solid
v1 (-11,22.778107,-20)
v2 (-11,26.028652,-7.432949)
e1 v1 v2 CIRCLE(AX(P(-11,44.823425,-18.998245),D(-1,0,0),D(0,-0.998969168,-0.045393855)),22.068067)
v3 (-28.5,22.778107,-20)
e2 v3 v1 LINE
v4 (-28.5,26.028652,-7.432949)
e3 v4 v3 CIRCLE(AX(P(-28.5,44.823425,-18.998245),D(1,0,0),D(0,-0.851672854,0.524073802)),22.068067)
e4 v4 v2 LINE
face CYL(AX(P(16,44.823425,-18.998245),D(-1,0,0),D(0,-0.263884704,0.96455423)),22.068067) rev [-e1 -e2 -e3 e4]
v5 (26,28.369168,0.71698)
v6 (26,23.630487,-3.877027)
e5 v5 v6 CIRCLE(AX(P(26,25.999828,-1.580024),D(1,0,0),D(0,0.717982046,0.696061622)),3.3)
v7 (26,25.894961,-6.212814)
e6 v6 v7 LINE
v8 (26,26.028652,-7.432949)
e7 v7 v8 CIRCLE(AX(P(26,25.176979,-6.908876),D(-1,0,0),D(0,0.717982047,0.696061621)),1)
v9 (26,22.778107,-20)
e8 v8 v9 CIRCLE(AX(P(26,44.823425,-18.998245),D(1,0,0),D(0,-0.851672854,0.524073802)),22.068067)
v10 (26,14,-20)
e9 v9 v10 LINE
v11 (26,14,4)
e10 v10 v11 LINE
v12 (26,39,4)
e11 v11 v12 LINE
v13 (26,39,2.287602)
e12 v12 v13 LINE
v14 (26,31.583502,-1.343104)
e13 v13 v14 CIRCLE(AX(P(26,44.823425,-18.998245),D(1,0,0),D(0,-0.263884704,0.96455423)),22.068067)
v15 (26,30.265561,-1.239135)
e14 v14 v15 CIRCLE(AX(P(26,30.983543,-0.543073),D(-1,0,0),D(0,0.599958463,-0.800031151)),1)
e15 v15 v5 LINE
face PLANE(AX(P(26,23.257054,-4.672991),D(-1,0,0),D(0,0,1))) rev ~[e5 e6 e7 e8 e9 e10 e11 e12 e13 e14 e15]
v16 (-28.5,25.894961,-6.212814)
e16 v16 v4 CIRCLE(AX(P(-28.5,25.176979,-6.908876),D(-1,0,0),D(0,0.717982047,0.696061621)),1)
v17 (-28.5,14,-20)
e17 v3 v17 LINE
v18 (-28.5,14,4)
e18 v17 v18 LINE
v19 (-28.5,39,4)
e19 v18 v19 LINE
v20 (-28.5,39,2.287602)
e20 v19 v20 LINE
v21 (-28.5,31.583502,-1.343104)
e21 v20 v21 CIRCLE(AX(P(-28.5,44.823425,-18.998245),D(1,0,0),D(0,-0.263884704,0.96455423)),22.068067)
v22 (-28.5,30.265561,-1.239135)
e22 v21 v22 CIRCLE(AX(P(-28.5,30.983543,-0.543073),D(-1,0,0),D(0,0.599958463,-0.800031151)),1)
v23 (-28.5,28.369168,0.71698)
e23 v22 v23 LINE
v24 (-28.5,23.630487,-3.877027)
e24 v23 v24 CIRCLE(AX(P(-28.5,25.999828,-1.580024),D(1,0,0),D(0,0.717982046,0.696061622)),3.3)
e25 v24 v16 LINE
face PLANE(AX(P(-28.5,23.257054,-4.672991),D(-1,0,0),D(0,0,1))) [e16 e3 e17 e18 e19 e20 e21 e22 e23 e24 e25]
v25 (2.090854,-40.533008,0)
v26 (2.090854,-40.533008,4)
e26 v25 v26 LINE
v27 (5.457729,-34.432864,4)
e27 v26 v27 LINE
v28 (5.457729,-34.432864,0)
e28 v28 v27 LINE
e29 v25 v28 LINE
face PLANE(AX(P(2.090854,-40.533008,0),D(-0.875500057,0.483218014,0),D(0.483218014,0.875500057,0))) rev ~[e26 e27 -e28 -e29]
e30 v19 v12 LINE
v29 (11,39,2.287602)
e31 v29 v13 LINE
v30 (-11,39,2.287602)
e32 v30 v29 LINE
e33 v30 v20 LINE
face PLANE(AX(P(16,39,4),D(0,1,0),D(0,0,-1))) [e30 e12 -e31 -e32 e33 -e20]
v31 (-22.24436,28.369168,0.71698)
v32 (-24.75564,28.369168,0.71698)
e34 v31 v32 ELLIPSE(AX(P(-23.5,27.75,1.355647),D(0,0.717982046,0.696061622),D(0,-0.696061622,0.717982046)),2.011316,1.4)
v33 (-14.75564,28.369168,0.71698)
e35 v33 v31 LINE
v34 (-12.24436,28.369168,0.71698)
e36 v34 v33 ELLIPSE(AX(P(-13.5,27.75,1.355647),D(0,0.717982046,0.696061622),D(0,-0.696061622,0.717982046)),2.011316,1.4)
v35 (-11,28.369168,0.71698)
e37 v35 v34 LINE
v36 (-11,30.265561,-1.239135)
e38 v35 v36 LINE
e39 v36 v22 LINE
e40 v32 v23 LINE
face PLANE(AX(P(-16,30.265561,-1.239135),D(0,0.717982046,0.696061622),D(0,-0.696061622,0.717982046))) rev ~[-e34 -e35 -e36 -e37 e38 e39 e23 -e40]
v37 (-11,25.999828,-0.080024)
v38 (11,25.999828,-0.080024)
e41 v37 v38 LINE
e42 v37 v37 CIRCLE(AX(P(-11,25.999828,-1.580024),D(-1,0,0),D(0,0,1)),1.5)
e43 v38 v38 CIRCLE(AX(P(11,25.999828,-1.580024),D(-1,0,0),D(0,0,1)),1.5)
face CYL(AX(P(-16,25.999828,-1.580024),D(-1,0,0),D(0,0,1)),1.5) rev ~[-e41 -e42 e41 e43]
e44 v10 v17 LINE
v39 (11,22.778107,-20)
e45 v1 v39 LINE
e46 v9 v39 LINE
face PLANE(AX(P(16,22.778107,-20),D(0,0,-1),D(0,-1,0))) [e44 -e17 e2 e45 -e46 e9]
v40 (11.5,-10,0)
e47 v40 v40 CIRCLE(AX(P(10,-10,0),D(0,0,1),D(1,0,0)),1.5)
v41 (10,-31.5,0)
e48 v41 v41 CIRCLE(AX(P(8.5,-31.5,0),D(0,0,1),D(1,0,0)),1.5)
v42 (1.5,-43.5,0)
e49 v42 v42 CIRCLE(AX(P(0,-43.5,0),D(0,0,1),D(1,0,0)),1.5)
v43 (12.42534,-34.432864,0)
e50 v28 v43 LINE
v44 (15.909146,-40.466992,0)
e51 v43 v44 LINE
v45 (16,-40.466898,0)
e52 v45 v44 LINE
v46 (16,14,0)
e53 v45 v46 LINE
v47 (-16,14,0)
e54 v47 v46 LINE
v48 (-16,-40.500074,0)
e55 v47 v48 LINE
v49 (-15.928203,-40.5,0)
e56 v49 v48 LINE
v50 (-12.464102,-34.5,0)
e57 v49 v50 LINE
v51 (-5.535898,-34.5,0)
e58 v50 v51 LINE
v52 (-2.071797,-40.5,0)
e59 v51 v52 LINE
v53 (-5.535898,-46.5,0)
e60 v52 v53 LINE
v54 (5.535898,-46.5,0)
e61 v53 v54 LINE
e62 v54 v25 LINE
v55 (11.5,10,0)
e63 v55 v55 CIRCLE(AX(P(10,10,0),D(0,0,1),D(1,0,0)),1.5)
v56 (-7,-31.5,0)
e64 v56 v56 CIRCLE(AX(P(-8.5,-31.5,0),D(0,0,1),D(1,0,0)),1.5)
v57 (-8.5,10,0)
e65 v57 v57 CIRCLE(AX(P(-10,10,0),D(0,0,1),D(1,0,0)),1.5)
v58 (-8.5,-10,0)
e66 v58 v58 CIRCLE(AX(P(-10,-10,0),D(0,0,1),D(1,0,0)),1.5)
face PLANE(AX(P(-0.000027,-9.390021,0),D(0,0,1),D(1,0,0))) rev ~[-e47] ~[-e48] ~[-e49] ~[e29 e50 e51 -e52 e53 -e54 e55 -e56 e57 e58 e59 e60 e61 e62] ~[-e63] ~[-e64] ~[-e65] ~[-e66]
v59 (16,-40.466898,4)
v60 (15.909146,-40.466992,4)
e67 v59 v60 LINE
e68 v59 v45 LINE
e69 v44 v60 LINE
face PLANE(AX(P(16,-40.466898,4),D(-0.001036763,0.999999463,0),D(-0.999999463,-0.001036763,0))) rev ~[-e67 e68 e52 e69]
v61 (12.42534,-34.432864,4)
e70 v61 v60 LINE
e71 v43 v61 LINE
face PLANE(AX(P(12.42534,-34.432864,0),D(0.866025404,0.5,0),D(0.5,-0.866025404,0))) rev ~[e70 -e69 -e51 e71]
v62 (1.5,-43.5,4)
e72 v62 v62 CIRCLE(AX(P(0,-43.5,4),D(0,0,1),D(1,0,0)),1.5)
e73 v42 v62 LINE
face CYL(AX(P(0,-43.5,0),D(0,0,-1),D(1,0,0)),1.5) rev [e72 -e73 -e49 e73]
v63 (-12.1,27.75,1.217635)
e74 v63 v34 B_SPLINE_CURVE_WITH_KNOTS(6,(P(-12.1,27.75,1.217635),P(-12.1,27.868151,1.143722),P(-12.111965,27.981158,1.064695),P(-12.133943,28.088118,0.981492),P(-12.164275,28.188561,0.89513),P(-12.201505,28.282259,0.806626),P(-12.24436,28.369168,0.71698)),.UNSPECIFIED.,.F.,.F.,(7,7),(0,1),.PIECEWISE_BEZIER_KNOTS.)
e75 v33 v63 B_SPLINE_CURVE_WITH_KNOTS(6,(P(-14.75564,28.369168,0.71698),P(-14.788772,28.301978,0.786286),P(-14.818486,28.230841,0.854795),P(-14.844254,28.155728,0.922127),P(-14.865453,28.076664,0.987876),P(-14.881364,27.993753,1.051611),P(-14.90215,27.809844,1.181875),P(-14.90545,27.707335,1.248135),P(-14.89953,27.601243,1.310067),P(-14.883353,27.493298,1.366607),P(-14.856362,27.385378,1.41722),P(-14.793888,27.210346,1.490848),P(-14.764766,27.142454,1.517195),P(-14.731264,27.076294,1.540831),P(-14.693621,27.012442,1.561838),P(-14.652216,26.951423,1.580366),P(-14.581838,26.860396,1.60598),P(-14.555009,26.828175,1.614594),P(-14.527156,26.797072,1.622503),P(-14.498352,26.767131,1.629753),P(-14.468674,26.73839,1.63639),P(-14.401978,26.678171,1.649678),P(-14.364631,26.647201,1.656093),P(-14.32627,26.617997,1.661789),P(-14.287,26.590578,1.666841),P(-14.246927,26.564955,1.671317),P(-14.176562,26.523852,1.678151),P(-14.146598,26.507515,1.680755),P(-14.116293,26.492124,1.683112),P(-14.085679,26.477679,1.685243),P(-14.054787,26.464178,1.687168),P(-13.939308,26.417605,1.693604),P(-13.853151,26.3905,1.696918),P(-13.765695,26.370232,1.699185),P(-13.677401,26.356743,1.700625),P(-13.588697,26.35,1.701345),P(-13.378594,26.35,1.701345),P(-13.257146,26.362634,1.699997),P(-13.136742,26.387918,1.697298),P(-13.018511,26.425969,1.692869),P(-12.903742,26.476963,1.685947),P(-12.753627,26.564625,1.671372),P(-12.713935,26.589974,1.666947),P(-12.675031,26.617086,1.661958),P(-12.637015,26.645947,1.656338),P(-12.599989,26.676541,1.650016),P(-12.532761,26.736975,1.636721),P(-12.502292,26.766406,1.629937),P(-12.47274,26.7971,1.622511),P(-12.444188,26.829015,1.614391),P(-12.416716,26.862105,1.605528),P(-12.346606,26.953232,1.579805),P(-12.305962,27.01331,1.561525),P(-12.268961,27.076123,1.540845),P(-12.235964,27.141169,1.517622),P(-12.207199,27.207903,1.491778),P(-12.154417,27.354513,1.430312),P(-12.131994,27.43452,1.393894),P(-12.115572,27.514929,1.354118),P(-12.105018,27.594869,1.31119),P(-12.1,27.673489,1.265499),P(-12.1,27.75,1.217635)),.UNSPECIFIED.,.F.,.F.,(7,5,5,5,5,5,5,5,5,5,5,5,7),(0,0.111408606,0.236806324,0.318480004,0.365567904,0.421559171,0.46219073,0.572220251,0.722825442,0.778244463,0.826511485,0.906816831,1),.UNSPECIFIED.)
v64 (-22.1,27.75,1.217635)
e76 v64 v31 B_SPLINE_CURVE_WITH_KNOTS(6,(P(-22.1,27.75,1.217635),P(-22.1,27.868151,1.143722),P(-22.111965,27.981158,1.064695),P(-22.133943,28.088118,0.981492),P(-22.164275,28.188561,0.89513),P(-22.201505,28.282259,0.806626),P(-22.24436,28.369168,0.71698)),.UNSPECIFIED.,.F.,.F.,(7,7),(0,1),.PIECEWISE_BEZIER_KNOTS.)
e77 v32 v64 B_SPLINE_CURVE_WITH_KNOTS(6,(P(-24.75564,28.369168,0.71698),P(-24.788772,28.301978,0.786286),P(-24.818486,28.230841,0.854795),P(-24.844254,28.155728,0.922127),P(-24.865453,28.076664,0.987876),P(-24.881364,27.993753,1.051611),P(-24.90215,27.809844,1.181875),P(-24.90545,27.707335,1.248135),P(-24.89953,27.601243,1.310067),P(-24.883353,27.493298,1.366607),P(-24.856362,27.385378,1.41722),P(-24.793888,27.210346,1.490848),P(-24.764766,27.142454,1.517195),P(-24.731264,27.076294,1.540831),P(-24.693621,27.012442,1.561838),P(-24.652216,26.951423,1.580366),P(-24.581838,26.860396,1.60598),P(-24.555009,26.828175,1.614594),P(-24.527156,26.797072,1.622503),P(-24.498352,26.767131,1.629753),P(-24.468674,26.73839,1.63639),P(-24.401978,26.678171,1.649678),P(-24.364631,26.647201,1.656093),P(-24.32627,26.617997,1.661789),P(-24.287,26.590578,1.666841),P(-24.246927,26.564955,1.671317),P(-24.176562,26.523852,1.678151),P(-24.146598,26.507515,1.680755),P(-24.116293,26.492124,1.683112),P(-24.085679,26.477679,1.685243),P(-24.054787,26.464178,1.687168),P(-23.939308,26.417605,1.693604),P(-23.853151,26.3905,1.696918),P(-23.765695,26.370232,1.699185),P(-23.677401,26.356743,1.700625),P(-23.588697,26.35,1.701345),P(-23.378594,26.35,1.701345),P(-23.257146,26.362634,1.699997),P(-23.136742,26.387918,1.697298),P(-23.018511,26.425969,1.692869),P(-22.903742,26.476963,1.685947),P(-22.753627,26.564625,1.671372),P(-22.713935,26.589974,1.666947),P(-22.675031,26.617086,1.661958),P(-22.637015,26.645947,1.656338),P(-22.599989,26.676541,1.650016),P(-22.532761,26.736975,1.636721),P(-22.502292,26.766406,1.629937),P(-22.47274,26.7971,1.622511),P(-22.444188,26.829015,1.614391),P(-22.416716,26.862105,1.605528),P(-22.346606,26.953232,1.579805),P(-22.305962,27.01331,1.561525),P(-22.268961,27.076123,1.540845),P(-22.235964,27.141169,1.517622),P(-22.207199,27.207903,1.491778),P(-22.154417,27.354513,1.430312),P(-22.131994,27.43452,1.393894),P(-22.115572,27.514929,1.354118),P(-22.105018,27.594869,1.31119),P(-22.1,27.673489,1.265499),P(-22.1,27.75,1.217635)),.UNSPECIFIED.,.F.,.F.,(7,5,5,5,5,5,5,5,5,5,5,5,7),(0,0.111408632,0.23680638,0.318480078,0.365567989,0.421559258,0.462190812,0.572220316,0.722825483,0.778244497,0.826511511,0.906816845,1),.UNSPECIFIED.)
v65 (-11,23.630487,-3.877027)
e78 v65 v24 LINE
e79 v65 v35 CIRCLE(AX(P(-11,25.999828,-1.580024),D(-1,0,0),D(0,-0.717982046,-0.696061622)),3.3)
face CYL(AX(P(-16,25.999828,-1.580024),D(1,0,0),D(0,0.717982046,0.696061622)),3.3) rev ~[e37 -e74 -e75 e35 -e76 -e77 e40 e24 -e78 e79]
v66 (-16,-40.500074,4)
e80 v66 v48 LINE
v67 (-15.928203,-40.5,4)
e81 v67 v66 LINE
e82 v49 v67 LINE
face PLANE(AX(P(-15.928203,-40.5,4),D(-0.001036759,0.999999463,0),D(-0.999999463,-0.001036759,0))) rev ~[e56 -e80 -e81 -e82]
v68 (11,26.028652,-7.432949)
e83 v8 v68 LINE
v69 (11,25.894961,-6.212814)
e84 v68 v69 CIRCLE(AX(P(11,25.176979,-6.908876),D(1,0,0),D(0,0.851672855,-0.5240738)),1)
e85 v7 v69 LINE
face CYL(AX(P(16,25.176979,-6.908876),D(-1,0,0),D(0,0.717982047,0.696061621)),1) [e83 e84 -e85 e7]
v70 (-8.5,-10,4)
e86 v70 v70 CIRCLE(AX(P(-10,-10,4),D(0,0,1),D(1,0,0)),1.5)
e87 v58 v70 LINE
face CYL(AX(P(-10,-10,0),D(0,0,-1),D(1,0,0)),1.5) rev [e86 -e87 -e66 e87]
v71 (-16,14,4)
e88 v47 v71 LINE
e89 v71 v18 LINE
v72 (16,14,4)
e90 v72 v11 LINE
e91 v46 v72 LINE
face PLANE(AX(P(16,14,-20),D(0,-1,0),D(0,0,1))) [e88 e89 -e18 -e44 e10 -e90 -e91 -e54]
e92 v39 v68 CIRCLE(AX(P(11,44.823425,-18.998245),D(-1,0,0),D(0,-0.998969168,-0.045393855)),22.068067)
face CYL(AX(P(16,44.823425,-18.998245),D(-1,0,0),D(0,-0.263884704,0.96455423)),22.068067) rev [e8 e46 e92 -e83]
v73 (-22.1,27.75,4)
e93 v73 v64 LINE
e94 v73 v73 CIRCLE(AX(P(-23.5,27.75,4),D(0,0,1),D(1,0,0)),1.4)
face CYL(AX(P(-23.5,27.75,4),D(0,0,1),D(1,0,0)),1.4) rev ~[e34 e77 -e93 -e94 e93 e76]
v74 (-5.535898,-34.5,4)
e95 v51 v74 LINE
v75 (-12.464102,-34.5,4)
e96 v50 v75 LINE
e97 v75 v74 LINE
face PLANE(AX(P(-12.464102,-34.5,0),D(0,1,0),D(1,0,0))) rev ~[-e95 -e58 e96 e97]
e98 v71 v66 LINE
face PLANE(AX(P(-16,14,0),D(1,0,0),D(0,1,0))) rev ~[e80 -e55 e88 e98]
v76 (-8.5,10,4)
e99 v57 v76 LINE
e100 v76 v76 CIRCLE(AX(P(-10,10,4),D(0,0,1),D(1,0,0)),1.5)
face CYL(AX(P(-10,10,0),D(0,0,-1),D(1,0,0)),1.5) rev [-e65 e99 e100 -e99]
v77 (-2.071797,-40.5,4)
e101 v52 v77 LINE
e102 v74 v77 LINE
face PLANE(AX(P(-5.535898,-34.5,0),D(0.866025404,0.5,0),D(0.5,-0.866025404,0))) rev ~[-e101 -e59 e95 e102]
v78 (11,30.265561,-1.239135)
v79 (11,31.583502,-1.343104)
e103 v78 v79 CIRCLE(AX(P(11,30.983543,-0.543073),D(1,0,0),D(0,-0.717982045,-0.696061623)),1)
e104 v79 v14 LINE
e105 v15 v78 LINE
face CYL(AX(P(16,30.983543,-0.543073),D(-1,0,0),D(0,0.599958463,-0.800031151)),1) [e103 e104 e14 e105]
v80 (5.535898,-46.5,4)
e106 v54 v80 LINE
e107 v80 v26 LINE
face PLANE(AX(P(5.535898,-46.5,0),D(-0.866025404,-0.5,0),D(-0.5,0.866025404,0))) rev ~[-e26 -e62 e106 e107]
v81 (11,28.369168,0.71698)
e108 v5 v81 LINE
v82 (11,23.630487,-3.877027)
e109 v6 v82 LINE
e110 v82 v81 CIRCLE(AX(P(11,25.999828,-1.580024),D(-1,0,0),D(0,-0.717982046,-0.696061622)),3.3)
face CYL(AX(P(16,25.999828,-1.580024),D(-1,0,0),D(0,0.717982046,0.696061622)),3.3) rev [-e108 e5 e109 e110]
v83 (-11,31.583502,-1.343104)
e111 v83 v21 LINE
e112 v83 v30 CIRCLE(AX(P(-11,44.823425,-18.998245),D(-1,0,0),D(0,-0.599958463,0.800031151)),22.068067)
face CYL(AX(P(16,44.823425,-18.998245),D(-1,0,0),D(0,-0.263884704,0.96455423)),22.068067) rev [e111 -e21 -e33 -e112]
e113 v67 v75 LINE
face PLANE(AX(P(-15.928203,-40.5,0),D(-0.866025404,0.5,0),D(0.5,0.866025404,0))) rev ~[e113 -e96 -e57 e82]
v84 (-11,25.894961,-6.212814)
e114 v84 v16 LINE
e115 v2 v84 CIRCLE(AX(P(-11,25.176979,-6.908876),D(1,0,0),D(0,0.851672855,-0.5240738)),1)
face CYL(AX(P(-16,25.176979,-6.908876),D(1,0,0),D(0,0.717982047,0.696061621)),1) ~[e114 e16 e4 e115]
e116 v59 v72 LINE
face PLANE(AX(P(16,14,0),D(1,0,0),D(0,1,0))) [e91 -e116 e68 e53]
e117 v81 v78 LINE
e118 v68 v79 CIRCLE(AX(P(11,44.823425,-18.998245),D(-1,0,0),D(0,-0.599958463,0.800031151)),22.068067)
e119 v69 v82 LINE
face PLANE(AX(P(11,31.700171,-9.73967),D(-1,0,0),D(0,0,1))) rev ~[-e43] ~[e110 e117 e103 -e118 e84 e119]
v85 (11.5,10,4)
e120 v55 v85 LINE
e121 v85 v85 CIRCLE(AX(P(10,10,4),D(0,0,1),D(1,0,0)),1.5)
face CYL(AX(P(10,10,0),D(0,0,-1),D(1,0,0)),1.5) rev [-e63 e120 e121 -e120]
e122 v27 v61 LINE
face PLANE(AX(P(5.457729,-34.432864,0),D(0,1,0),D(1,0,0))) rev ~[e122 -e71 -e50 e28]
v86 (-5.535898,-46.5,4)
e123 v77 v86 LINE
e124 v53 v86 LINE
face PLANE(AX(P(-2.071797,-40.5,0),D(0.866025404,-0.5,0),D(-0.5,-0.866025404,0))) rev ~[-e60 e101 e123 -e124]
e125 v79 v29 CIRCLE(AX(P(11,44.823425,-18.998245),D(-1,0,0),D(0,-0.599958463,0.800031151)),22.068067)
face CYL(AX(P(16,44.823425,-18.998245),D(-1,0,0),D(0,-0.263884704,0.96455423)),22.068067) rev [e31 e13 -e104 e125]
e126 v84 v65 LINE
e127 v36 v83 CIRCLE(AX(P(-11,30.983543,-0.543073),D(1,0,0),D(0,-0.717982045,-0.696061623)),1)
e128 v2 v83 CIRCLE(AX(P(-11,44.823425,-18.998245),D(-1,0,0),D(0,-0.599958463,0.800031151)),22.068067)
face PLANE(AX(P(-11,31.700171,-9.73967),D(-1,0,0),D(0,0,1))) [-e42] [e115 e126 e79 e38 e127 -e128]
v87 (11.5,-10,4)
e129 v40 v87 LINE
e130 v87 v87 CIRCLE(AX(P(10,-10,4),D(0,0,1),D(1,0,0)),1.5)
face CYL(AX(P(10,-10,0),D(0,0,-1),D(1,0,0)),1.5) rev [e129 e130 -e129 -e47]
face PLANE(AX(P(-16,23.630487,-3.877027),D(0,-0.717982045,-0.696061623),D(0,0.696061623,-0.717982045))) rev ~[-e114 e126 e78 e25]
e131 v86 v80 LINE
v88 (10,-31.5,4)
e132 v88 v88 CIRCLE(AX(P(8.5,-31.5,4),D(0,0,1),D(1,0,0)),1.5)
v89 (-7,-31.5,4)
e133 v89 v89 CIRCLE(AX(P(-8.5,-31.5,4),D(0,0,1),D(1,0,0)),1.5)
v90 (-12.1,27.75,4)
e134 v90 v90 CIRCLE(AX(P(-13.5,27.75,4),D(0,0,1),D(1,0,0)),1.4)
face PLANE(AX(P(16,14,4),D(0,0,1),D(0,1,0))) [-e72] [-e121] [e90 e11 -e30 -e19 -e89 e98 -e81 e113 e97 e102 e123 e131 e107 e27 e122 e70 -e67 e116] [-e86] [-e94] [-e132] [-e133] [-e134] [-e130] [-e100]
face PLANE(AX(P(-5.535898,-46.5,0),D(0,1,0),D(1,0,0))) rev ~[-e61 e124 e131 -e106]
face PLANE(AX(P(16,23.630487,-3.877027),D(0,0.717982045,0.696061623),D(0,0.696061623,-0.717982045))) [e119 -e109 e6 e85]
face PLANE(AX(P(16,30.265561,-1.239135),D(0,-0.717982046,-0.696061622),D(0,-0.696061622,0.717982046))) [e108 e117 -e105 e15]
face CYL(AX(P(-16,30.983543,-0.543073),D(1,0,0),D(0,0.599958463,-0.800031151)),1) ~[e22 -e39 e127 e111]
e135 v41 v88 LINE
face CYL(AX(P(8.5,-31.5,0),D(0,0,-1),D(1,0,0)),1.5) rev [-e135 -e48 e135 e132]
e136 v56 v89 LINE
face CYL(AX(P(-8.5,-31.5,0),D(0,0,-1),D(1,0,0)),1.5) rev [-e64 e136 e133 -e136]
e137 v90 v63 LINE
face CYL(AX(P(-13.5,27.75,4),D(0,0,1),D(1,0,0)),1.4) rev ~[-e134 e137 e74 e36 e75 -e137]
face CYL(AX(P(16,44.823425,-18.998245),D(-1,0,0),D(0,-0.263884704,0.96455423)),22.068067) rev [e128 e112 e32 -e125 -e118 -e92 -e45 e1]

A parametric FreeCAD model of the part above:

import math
import FreeCAD as App
import Part
import Sketcher

V = App.Vector
Q = App.Units.Quantity

doc = App.newDocument("Part")
body = doc.addObject("PartDesign::Body", "Body")

# Sketch on XY plane
sketch1 = body.newObject("Sketcher::SketchObject", "Sketch")
sketch1.AttachmentSupport = (doc.getObject("XY_Plane"), [""])
sketch1.MapMode = "FlatFace"
sketch1.addGeometry([
    Part.LineSegment(V(-16, 39, 0), V(-16, -46.5, 0)),  # 0
    Part.LineSegment(V(-16, -46.5, 0), V(-15, -46.5, 0)),  # 1
    Part.LineSegment(V(-15, -46.5, 0), V(-15, -42.2, 0)),  # 2
    Part.LineSegment(V(-15, -42.2, 0), V(-15.9, -40.5, 0)),  # 3
    Part.LineSegment(V(-15.9, -40.5, 0), V(-12.5, -34.5, 0)),  # 4
    Part.LineSegment(V(-12.5, -34.5, 0), V(-5.5, -34.5, 0)),  # 5
    Part.LineSegment(V(-5.5, -34.5, 0), V(-2.1, -40.5, 0)),  # 6
    Part.LineSegment(V(-2.1, -40.5, 0), V(-5.5, -46.5, 0)),  # 7
    Part.LineSegment(V(-5.5, -46.5, 0), V(5.5, -46.5, 0)),  # 8
    Part.LineSegment(V(5.5, -46.5, 0), V(2.1, -40.5, 0)),  # 9
    Part.LineSegment(V(2.1, -40.5, 0), V(5.5, -34.4, 0)),  # 10
    Part.LineSegment(V(5.5, -34.4, 0), V(12.4, -34.4, 0)),  # 11
    Part.LineSegment(V(12.4, -34.4, 0), V(15.9, -40.5, 0)),  # 12
    Part.LineSegment(V(15.9, -40.5, 0), V(15, -42.1, 0)),  # 13
    Part.LineSegment(V(15, -42.1, 0), V(15, -46.5, 0)),  # 14
    Part.LineSegment(V(15, -46.5, 0), V(16, -46.5, 0)),  # 15
    Part.LineSegment(V(16, -46.5, 0), V(16, 39, 0)),  # 16
    Part.LineSegment(V(16, 39, 0), V(-16, 39, 0)),  # 17
    Part.Circle(V(-8.5, -31.5, 0), V(0, 0, 1), 1.5),  # 18
    Part.Circle(V(0, -43.5, 0), V(0, 0, 1), 1.5),  # 19
    Part.Circle(V(8.5, -31.5, 0), V(0, 0, 1), 1.5),  # 20
    Part.Circle(V(-10, -10, 0), V(0, 0, 1), 1.5),  # 21
    Part.Circle(V(-10, 10, 0), V(0, 0, 1), 1.5),  # 22
    Part.Circle(V(10, -10, 0), V(0, 0, 1), 1.5),  # 23
    Part.Circle(V(10, 10, 0), V(0, 0, 1), 1.5),  # 24
], False)
sketch1.addConstraint([
    Sketcher.Constraint("Coincident", 0, 2, 1, 1),
    Sketcher.Constraint("Coincident", 1, 2, 2, 1),
    Sketcher.Constraint("Coincident", 2, 2, 3, 1),
    Sketcher.Constraint("Coincident", 3, 2, 4, 1),
    Sketcher.Constraint("Coincident", 4, 2, 5, 1),
    Sketcher.Constraint("Coincident", 5, 2, 6, 1),
    Sketcher.Constraint("Coincident", 6, 2, 7, 1),
    Sketcher.Constraint("Coincident", 7, 2, 8, 1),
    Sketcher.Constraint("Coincident", 8, 2, 9, 1),
    Sketcher.Constraint("Coincident", 9, 2, 10, 1),
    Sketcher.Constraint("Coincident", 10, 2, 11, 1),
    Sketcher.Constraint("Coincident", 11, 2, 12, 1),
    Sketcher.Constraint("Coincident", 12, 2, 13, 1),
    Sketcher.Constraint("Coincident", 13, 2, 14, 1),
    Sketcher.Constraint("Coincident", 14, 2, 15, 1),
    Sketcher.Constraint("Coincident", 15, 2, 16, 1),
    Sketcher.Constraint("Coincident", 16, 2, 17, 1),
    Sketcher.Constraint("Coincident", 17, 2, 0, 1),
    Sketcher.Constraint("Vertical", 0),
    Sketcher.Constraint("Horizontal", 1),
    Sketcher.Constraint("Vertical", 2),
    Sketcher.Constraint("Horizontal", 5),
    Sketcher.Constraint("Horizontal", 8),
    Sketcher.Constraint("Horizontal", 11),
    Sketcher.Constraint("Vertical", 14),
    Sketcher.Constraint("Horizontal", 15),
    Sketcher.Constraint("Vertical", 16),
    Sketcher.Constraint("Horizontal", 17),
    Sketcher.Constraint("Equal", 18, 19),
    Sketcher.Constraint("Equal", 19, 20),
    Sketcher.Constraint("Equal", 20, 21),
    Sketcher.Constraint("Equal", 21, 22),
    Sketcher.Constraint("Equal", 22, 23),
    Sketcher.Constraint("Equal", 23, 24),
    Sketcher.Constraint("Symmetric", 22, 3, 23, 3, -1, 1),
    Sketcher.Constraint("Symmetric", 21, 3, 24, 3, -1, 1),
    Sketcher.Constraint("Symmetric", 18, 3, 20, 3, -2),
    Sketcher.Constraint("Symmetric", 21, 3, 23, 3, -2),
    Sketcher.Constraint("Symmetric", 0, 2, 15, 2, -2),
    Sketcher.Constraint("PointOnObject", 19, 3, -2),
    Sketcher.Constraint("Parallel", 3, 6),
    Sketcher.Constraint("Parallel", 4, 7),
    Sketcher.Constraint("Parallel", 6, 9),
    Sketcher.Constraint("Parallel", 9, 12),
    Sketcher.Constraint("Parallel", 10, 13),
    Sketcher.Constraint("Horizontal", 3, 2, 6, 2),
    Sketcher.Constraint("Horizontal", 1, 2, 7, 2),
    Sketcher.Constraint("Vertical", 5, 2, 7, 2),
    Sketcher.Constraint("Equal", 4, 6),
    Sketcher.Constraint("Equal", 10, 12),
    Sketcher.Constraint("Diameter", 18, Q("3 mm")),
    Sketcher.Constraint("DistanceX", 15, 1, 15, 2, Q("1 mm")),
    Sketcher.Constraint("DistanceX", 17, 2, 17, 1, Q("32 mm")),
    Sketcher.Constraint("Angle", 3, Q("120 deg")),
    Sketcher.Constraint("DistanceY", 0, 2, 0, 1, Q("85.5 mm")),
    Sketcher.Constraint("DistanceX", 21, 3, -1, 1, Q("10 mm")),
    Sketcher.Constraint("DistanceY", 21, 3, -1, 1, Q("10 mm")),
    Sketcher.Constraint("DistanceY", -1, 1, 16, 2, Q("39 mm")),
    Sketcher.Constraint("DistanceY", 19, 3, 18, 3, Q("12 mm")),
    Sketcher.Constraint("DistanceX", 18, 3, 20, 3, Q("17 mm")),
    Sketcher.Constraint("DistanceY", 0, 2, 19, 3, Q("3 mm")),
    Sketcher.Constraint("DistanceY", 0, 2, 3, 2, Q("6 mm")),
    Sketcher.Constraint("DistanceX", 11, 1, 11, 2, Q("6.967611 mm")),
    Sketcher.Constraint("DistanceY", 2, 1, 2, 2, Q("4.33912 mm")),
    Sketcher.Constraint("DistanceX", 4, 2, -1, 1, Q("12.464102 mm")),
    Sketcher.Constraint("DistanceX", 5, 2, -1, 1, Q("5.535898 mm")),
    Sketcher.Constraint("DistanceX", -1, 1, 8, 2, Q("5.535898 mm")),
    Sketcher.Constraint("DistanceY", 13, 2, 12, 2, Q("1.647202 mm")),
    Sketcher.Constraint("Distance", 9, Q("6.890089 mm")),
    Sketcher.Constraint("Distance", 10, Q("6.967611 mm")),
])
pad1 = body.newObject("PartDesign::Pad", "Pad")
pad1.Profile = sketch1
pad1.Length = 4

# Sketch on XY plane
sketch2 = body.newObject("Sketcher::SketchObject", "Sketch001")
sketch2.AttachmentSupport = (doc.getObject("XY_Plane"), [""])
sketch2.MapMode = "FlatFace"
sketch2.addGeometry([
    Part.LineSegment(V(-16, 39, 0), V(-16, 14, 0)),
    Part.LineSegment(V(-16, 14, 0), V(16, 14, 0)),
    Part.LineSegment(V(16, 14, 0), V(16, 39, 0)),
    Part.LineSegment(V(16, 39, 0), V(-16, 39, 0)),
], False)
sketch2.addConstraint([
    Sketcher.Constraint("Coincident", 0, 2, 1, 1),
    Sketcher.Constraint("Coincident", 1, 2, 2, 1),
    Sketcher.Constraint("Coincident", 2, 2, 3, 1),
    Sketcher.Constraint("Coincident", 3, 2, 0, 1),
    Sketcher.Constraint("Vertical", 0),
    Sketcher.Constraint("Horizontal", 1),
    Sketcher.Constraint("Vertical", 2),
    Sketcher.Constraint("Horizontal", 3),
    Sketcher.Constraint("DistanceX", 1, 1, 1, 2, Q("32 mm")),
    Sketcher.Constraint("DistanceY", 0, 2, 0, 1, Q("25 mm")),
    Sketcher.Constraint("DistanceX", 0, 2, -1, 1, Q("16 mm")),
    Sketcher.Constraint("DistanceY", -1, 1, 0, 2, Q("14 mm")),
])
pad2 = body.newObject("PartDesign::Pad", "Pad001")
pad2.Profile = sketch2
pad2.Length = 20
pad2.Reversed = True

# Sketch on YZ plane
sketch3 = body.newObject("Sketcher::SketchObject", "Sketch002")
sketch3.AttachmentSupport = (doc.getObject("YZ_Plane"), [""])
sketch3.MapMode = "FlatFace"
sketch3.AttachmentOffset = App.Placement(V(0, 0, -16), App.Rotation())
sketch3.addGeometry(Part.Circle(V(26, -1.6, 0), V(0, 0, 1), 1.5), False)
sketch3.addConstraint([
    Sketcher.Constraint("Diameter", 0, Q("3 mm")),
    Sketcher.Constraint("DistanceX", -1, 1, 0, 3, Q("25.999828 mm")),
    Sketcher.Constraint("DistanceY", 0, 3, -1, 1, Q("1.580024 mm")),
])
pocket1 = body.newObject("PartDesign::Pocket", "Pocket")
pocket1.Profile = sketch3
pocket1.Type = "ThroughAll"
pocket1.Midplane = True

# Sketch on YZ plane
sketch4 = body.newObject("Sketcher::SketchObject", "Sketch003")
sketch4.AttachmentSupport = (doc.getObject("YZ_Plane"), [""])
sketch4.MapMode = "FlatFace"
sketch4.AttachmentOffset = App.Placement(V(0, 0, -16), App.Rotation())
sketch4.addGeometry([
    Part.LineSegment(V(28.4, 0.7, 0), V(30.3, -1.2, 0)),  # 0
    Part.ArcOfCircle(Part.Circle(V(31, -0.5, 0), V(0, 0, 1), 1), math.radians(-136), math.radians(-53)),  # 1
    Part.ArcOfCircle(Part.Circle(V(44.8, -19, 0), V(0, 0, 1), 22.1), math.radians(105), math.radians(127)),  # 2
    Part.LineSegment(V(39, 2.3, 0), V(39, -20, 0)),  # 3
    Part.LineSegment(V(39, -20, 0), V(22.8, -20, 0)),  # 4
    Part.ArcOfCircle(Part.Circle(V(44.8, -19, 0), V(0, 0, 1), 22.1), math.radians(148), math.radians(183)),  # 5
    Part.ArcOfCircle(Part.Circle(V(25.2, -6.9, 0), V(0, 0, 1), 1), math.radians(-32), math.radians(44)),  # 6
    Part.LineSegment(V(25.9, -6.2, 0), V(23.6, -3.9, 0)),  # 7
    Part.ArcOfCircle(Part.Circle(V(26, -1.6, 0), V(0, 0, 1), 3.3), math.radians(44), math.radians(224)),  # 8
], False)
sketch4.addConstraint([
    Sketcher.Constraint("Tangent", 0, 2, 1, 1),
    Sketcher.Constraint("Tangent", 1, 2, 2, 2),
    Sketcher.Constraint("Coincident", 2, 1, 3, 1),
    Sketcher.Constraint("Coincident", 3, 2, 4, 1),
    Sketcher.Constraint("Coincident", 4, 2, 5, 2),
    Sketcher.Constraint("Tangent", 5, 1, 6, 1),
    Sketcher.Constraint("Tangent", 6, 2, 7, 1),
    Sketcher.Constraint("Tangent", 7, 2, 8, 2),
    Sketcher.Constraint("Tangent", 8, 1, 0, 1),
    Sketcher.Constraint("Vertical", 3),
    Sketcher.Constraint("Horizontal", 4),
    Sketcher.Constraint("Coincident", 5, 3, 2, 3),
    Sketcher.Constraint("Equal", 2, 5),
    Sketcher.Constraint("Equal", 1, 6),
    Sketcher.Constraint("Parallel", 0, 7),
    Sketcher.Constraint("Radius", 1, Q("1 mm")),
    Sketcher.Constraint("Radius", 8, Q("3.3 mm")),
    Sketcher.Constraint("DistanceX", -1, 1, 2, 1, Q("39 mm")),
    Sketcher.Constraint("DistanceY", 3, 2, -1, 1, Q("20 mm")),
    Sketcher.Constraint("Radius", 2, Q("22.068067 mm")),
    Sketcher.Constraint("DistanceX", -1, 1, 1, 2, Q("31.583502 mm")),
    Sketcher.Constraint("DistanceX", 6, 2, 0, 2, Q("4.3706 mm")),
    Sketcher.Constraint("Distance", 0, Q("2.724461 mm")),
    Sketcher.Constraint("DistanceX", 4, 2, 4, 1, Q("16.221893 mm")),
    Sketcher.Constraint("DistanceY", 3, 2, 3, 1, Q("22.287602 mm")),
])
pocket2 = body.newObject("PartDesign::Pocket", "Pocket001")
pocket2.Profile = sketch4
pocket2.Length = 5
pocket2.Reversed = True

# Sketch on YZ plane
sketch5 = body.newObject("Sketcher::SketchObject", "Sketch004")
sketch5.AttachmentSupport = (doc.getObject("YZ_Plane"), [""])
sketch5.MapMode = "FlatFace"
sketch5.AttachmentOffset = App.Placement(V(0, 0, 16), App.Rotation())
sketch5.addGeometry([
    Part.LineSegment(V(28.4, 0.7, 0), V(30.3, -1.2, 0)),  # 0
    Part.ArcOfCircle(Part.Circle(V(31, -0.5, 0), V(0, 0, 1), 1), math.radians(-136), math.radians(-53)),  # 1
    Part.ArcOfCircle(Part.Circle(V(44.8, -19, 0), V(0, 0, 1), 22.1), math.radians(105), math.radians(127)),  # 2
    Part.LineSegment(V(39, 2.3, 0), V(39, -20, 0)),  # 3
    Part.LineSegment(V(39, -20, 0), V(22.8, -20, 0)),  # 4
    Part.ArcOfCircle(Part.Circle(V(44.8, -19, 0), V(0, 0, 1), 22.1), math.radians(148), math.radians(183)),  # 5
    Part.ArcOfCircle(Part.Circle(V(25.2, -6.9, 0), V(0, 0, 1), 1), math.radians(-32), math.radians(44)),  # 6
    Part.LineSegment(V(25.9, -6.2, 0), V(23.6, -3.9, 0)),  # 7
    Part.ArcOfCircle(Part.Circle(V(26, -1.6, 0), V(0, 0, 1), 3.3), math.radians(44), math.radians(224)),  # 8
], False)
sketch5.addConstraint([
    Sketcher.Constraint("Tangent", 0, 2, 1, 1),
    Sketcher.Constraint("Tangent", 1, 2, 2, 2),
    Sketcher.Constraint("Coincident", 2, 1, 3, 1),
    Sketcher.Constraint("Coincident", 3, 2, 4, 1),
    Sketcher.Constraint("Coincident", 4, 2, 5, 2),
    Sketcher.Constraint("Tangent", 5, 1, 6, 1),
    Sketcher.Constraint("Tangent", 6, 2, 7, 1),
    Sketcher.Constraint("Tangent", 7, 2, 8, 2),
    Sketcher.Constraint("Tangent", 8, 1, 0, 1),
    Sketcher.Constraint("Vertical", 3),
    Sketcher.Constraint("Horizontal", 4),
    Sketcher.Constraint("Coincident", 5, 3, 2, 3),
    Sketcher.Constraint("Equal", 2, 5),
    Sketcher.Constraint("Equal", 1, 6),
    Sketcher.Constraint("Parallel", 0, 7),
    Sketcher.Constraint("Radius", 1, Q("1 mm")),
    Sketcher.Constraint("Radius", 8, Q("3.3 mm")),
    Sketcher.Constraint("DistanceX", -1, 1, 2, 1, Q("39 mm")),
    Sketcher.Constraint("DistanceY", 3, 2, -1, 1, Q("20 mm")),
    Sketcher.Constraint("Radius", 2, Q("22.068067 mm")),
    Sketcher.Constraint("DistanceX", -1, 1, 1, 2, Q("31.583502 mm")),
    Sketcher.Constraint("DistanceX", 6, 2, 0, 2, Q("4.3706 mm")),
    Sketcher.Constraint("Distance", 0, Q("2.724461 mm")),
    Sketcher.Constraint("DistanceX", 4, 2, 4, 1, Q("16.221893 mm")),
    Sketcher.Constraint("DistanceY", 3, 2, 3, 1, Q("22.287602 mm")),
])
pocket3 = body.newObject("PartDesign::Pocket", "Pocket002")
pocket3.Profile = sketch5
pocket3.Length = 5

# Sketch on XY plane
sketch6 = body.newObject("Sketcher::SketchObject", "Sketch005")
sketch6.AttachmentSupport = (doc.getObject("XY_Plane"), [""])
sketch6.MapMode = "FlatFace"
sketch6.AttachmentOffset = App.Placement(V(0, 0, 4), App.Rotation())
sketch6.addGeometry([
    Part.LineSegment(V(-14.969294, -42.16088, 0), V(-15.928203, -40.5, 0)),  # 0
    Part.LineSegment(V(-15.928203, -40.5, 0), V(-16, -40.500074, 0)),  # 1
    Part.LineSegment(V(-16, -40.500074, 0), V(-16, -46.5, 0)),  # 2
    Part.LineSegment(V(-16, -46.5, 0), V(-14.969294, -46.5, 0)),  # 3
    Part.LineSegment(V(-14.969294, -46.5, 0), V(-14.969294, -42.16088, 0)),  # 4
    Part.LineSegment(V(15.909146, -40.466992, 0), V(10.366872, -40.472738, 0)),  # 5
    Part.LineSegment(V(10.366872, -40.472738, 0), V(10.366872, -46.5, 0)),  # 6
    Part.LineSegment(V(10.366872, -46.5, 0), V(17.916172, -46.5, 0)),  # 7
    Part.LineSegment(V(17.916172, -46.5, 0), V(17.825289, -40.465006, 0)),  # 8
    Part.LineSegment(V(17.825289, -40.465006, 0), V(16, -40.466898, 0)),  # 9
    Part.LineSegment(V(16, -40.466898, 0), V(15.909146, -40.466992, 0)),  # 10
], False)
sketch6.addConstraint([
    Sketcher.Constraint("Coincident", 0, 2, 1, 1),
    Sketcher.Constraint("Coincident", 1, 2, 2, 1),
    Sketcher.Constraint("Coincident", 2, 2, 3, 1),
    Sketcher.Constraint("Coincident", 3, 2, 4, 1),
    Sketcher.Constraint("Coincident", 4, 2, 0, 1),
    Sketcher.Constraint("Coincident", 5, 2, 6, 1),
    Sketcher.Constraint("Coincident", 6, 2, 7, 1),
    Sketcher.Constraint("Coincident", 7, 2, 8, 1),
    Sketcher.Constraint("Coincident", 8, 2, 9, 1),
    Sketcher.Constraint("Coincident", 9, 2, 10, 1),
    Sketcher.Constraint("Coincident", 10, 2, 5, 1),
    Sketcher.Constraint("Vertical", 2),
    Sketcher.Constraint("Horizontal", 3),
    Sketcher.Constraint("Vertical", 4),
    Sketcher.Constraint("Vertical", 6),
    Sketcher.Constraint("Horizontal", 7),
    Sketcher.Constraint("DistanceX", 1, 2, -1, 1, Q("16 mm")),
    Sketcher.Constraint("DistanceX", -1, 1, 9, 2, Q("16 mm")),
    Sketcher.Constraint("DistanceY", 2, 2, 0, 2, Q("6 mm")),
    Sketcher.Constraint("DistanceY", 6, 2, 0, 2, Q("6 mm")),
    Sketcher.Constraint("DistanceY", 0, 2, -1, 1, Q("40.5 mm")),
    Sketcher.Constraint("DistanceX", 7, 1, 7, 2, Q("7.5493 mm")),
    Sketcher.Constraint("DistanceY", 4, 1, 4, 2, Q("4.33912 mm")),
    Sketcher.Constraint("DistanceY", 6, 2, 6, 1, Q("6.027262 mm")),
    Sketcher.Constraint("Distance", 0, Q("1.917819 mm")),
    Sketcher.Constraint("Distance", 8, Q("6.035679 mm")),
    Sketcher.Constraint("Distance", 9, Q("1.82529 mm")),
    Sketcher.Constraint("DistanceX", 3, 1, 3, 2, Q("1.030706 mm")),
    Sketcher.Constraint("DistanceY", 2, 2, 2, 1, Q("5.999926 mm")),
    Sketcher.Constraint("DistanceY", 5, 2, 9, 2, Q("0.00584 mm")),
    Sketcher.Constraint("Distance", 5, Q("5.542277 mm")),
    Sketcher.Constraint("Distance", 10, Q("0.090854 mm")),
    Sketcher.Constraint("DistanceY", 10, 2, -1, 1, Q("40.466992 mm")),
])
pocket4 = body.newObject("PartDesign::Pocket", "Pocket003")
pocket4.Profile = sketch6
pocket4.Type = "ThroughAll"

# Sketch on YZ plane
sketch7 = body.newObject("Sketcher::SketchObject", "Sketch006")
sketch7.AttachmentSupport = (doc.getObject("YZ_Plane"), [""])
sketch7.MapMode = "FlatFace"
sketch7.AttachmentOffset = App.Placement(V(0, 0, -16), App.Rotation())
sketch7.addGeometry([
    Part.ArcOfCircle(Part.Circle(V(31, -0.5, 0), V(0, 0, 1), 1), math.radians(-136), math.radians(-53)),  # 0
    Part.LineSegment(V(30.3, -1.2, 0), V(28.4, 0.7, 0)),  # 1
    Part.ArcOfCircle(Part.Circle(V(26, -1.6, 0), V(0, 0, 1), 3.3), math.radians(44), math.radians(224)),  # 2
    Part.LineSegment(V(23.6, -3.9, 0), V(25.9, -6.2, 0)),  # 3
    Part.ArcOfCircle(Part.Circle(V(25.2, -6.9, 0), V(0, 0, 1), 1), math.radians(-32), math.radians(44)),  # 4
    Part.ArcOfCircle(Part.Circle(V(44.8, -19, 0), V(0, 0, 1), 22.1), math.radians(148), math.radians(183)),  # 5
    Part.LineSegment(V(22.8, -20, 0), V(14, -20, 0)),  # 6
    Part.LineSegment(V(14, -20, 0), V(14, 4, 0)),  # 7
    Part.LineSegment(V(14, 4, 0), V(39, 4, 0)),  # 8
    Part.LineSegment(V(39, 4, 0), V(39, 2.3, 0)),  # 9
    Part.ArcOfCircle(Part.Circle(V(44.8, -19, 0), V(0, 0, 1), 22.1), math.radians(105), math.radians(127)),  # 10
], False)
sketch7.addConstraint([
    Sketcher.Constraint("Tangent", 0, 1, 1, 1),
    Sketcher.Constraint("Tangent", 1, 2, 2, 1),
    Sketcher.Constraint("Tangent", 2, 2, 3, 1),
    Sketcher.Constraint("Tangent", 3, 2, 4, 2),
    Sketcher.Constraint("Tangent", 4, 1, 5, 1),
    Sketcher.Constraint("Coincident", 5, 2, 6, 1),
    Sketcher.Constraint("Coincident", 6, 2, 7, 1),
    Sketcher.Constraint("Coincident", 7, 2, 8, 1),
    Sketcher.Constraint("Coincident", 8, 2, 9, 1),
    Sketcher.Constraint("Coincident", 9, 2, 10, 1),
    Sketcher.Constraint("Tangent", 10, 2, 0, 2),
    Sketcher.Constraint("Horizontal", 6),
    Sketcher.Constraint("Vertical", 7),
    Sketcher.Constraint("Horizontal", 8),
    Sketcher.Constraint("Vertical", 9),
    Sketcher.Constraint("Coincident", 10, 3, 5, 3),
    Sketcher.Constraint("Equal", 0, 4),
    Sketcher.Constraint("Equal", 5, 10),
    Sketcher.Constraint("Parallel", 1, 3),
    Sketcher.Constraint("Radius", 0, Q("1 mm")),
    Sketcher.Constraint("Radius", 2, Q("3.3 mm")),
    Sketcher.Constraint("DistanceX", 8, 1, 8, 2, Q("25 mm")),
    Sketcher.Constraint("DistanceY", 7, 1, 7, 2, Q("24 mm")),
    Sketcher.Constraint("DistanceY", 5, 2, -1, 1, Q("20 mm")),
    Sketcher.Constraint("DistanceX", -1, 1, 6, 2, Q("14 mm")),
    Sketcher.Constraint("Radius", 5, Q("22.068067 mm")),
    Sketcher.Constraint("DistanceX", -1, 1, 10, 2, Q("31.583502 mm")),
    Sketcher.Constraint("DistanceX", 3, 2, 0, 1, Q("4.3706 mm")),
    Sketcher.Constraint("Distance", 1, Q("2.724461 mm")),
    Sketcher.Constraint("DistanceX", 6, 2, 6, 1, Q("8.778107 mm")),
    Sketcher.Constraint("DistanceY", 9, 2, 9, 1, Q("1.712398 mm")),
])
pad3 = body.newObject("PartDesign::Pad", "Pad002")
pad3.Profile = sketch7
pad3.Length = 12.5
pad3.Reversed = True

# Sketch on XY plane
sketch8 = body.newObject("Sketcher::SketchObject", "Sketch007")
sketch8.AttachmentSupport = (doc.getObject("XY_Plane"), [""])
sketch8.MapMode = "FlatFace"
sketch8.AttachmentOffset = App.Placement(V(0, 0, 4), App.Rotation())
sketch8.addGeometry(Part.Circle(V(-23.5, 27.8, 0), V(0, 0, 1), 1.4), False)
sketch8.addConstraint([
    Sketcher.Constraint("Diameter", 0, Q("2.8 mm")),
    Sketcher.Constraint("DistanceX", 0, 3, -1, 1, Q("23.5 mm")),
    Sketcher.Constraint("DistanceY", -1, 1, 0, 3, Q("27.75 mm")),
])
pocket5 = body.newObject("PartDesign::Pocket", "Pocket004")
pocket5.Profile = sketch8
pocket5.Type = "UpToFirst"

# Sketch on XY plane
sketch9 = body.newObject("Sketcher::SketchObject", "Sketch008")
sketch9.AttachmentSupport = (doc.getObject("XY_Plane"), [""])
sketch9.MapMode = "FlatFace"
sketch9.AttachmentOffset = App.Placement(V(0, 0, 4), App.Rotation())
sketch9.addGeometry(Part.Circle(V(-13.5, 27.8, 0), V(0, 0, 1), 1.4), False)
sketch9.addConstraint([
    Sketcher.Constraint("Diameter", 0, Q("2.8 mm")),
    Sketcher.Constraint("DistanceX", 0, 3, -1, 1, Q("13.5 mm")),
    Sketcher.Constraint("DistanceY", -1, 1, 0, 3, Q("27.75 mm")),
])
pocket6 = body.newObject("PartDesign::Pocket", "Pocket005")
pocket6.Profile = sketch9
pocket6.Type = "UpToFirst"

# Sketch on YZ plane
sketch10 = body.newObject("Sketcher::SketchObject", "Sketch009")
sketch10.AttachmentSupport = (doc.getObject("YZ_Plane"), [""])
sketch10.MapMode = "FlatFace"
sketch10.AttachmentOffset = App.Placement(V(0, 0, 16), App.Rotation())
sketch10.addGeometry([
    Part.ArcOfCircle(Part.Circle(V(31, -0.5, 0), V(0, 0, 1), 1), math.radians(-136), math.radians(-53)),  # 0
    Part.LineSegment(V(30.3, -1.2, 0), V(28.4, 0.7, 0)),  # 1
    Part.ArcOfCircle(Part.Circle(V(26, -1.6, 0), V(0, 0, 1), 3.3), math.radians(44), math.radians(224)),  # 2
    Part.LineSegment(V(23.6, -3.9, 0), V(25.9, -6.2, 0)),  # 3
    Part.ArcOfCircle(Part.Circle(V(25.2, -6.9, 0), V(0, 0, 1), 1), math.radians(-32), math.radians(44)),  # 4
    Part.ArcOfCircle(Part.Circle(V(44.8, -19, 0), V(0, 0, 1), 22.1), math.radians(148), math.radians(183)),  # 5
    Part.LineSegment(V(22.8, -20, 0), V(14, -20, 0)),  # 6
    Part.LineSegment(V(14, -20, 0), V(14, 4, 0)),  # 7
    Part.LineSegment(V(14, 4, 0), V(39, 4, 0)),  # 8
    Part.LineSegment(V(39, 4, 0), V(39, 2.3, 0)),  # 9
    Part.ArcOfCircle(Part.Circle(V(44.8, -19, 0), V(0, 0, 1), 22.1), math.radians(105), math.radians(127)),  # 10
], False)
sketch10.addConstraint([
    Sketcher.Constraint("Tangent", 0, 1, 1, 1),
    Sketcher.Constraint("Tangent", 1, 2, 2, 1),
    Sketcher.Constraint("Tangent", 2, 2, 3, 1),
    Sketcher.Constraint("Tangent", 3, 2, 4, 2),
    Sketcher.Constraint("Tangent", 4, 1, 5, 1),
    Sketcher.Constraint("Coincident", 5, 2, 6, 1),
    Sketcher.Constraint("Coincident", 6, 2, 7, 1),
    Sketcher.Constraint("Coincident", 7, 2, 8, 1),
    Sketcher.Constraint("Coincident", 8, 2, 9, 1),
    Sketcher.Constraint("Coincident", 9, 2, 10, 1),
    Sketcher.Constraint("Tangent", 10, 2, 0, 2),
    Sketcher.Constraint("Horizontal", 6),
    Sketcher.Constraint("Vertical", 7),
    Sketcher.Constraint("Horizontal", 8),
    Sketcher.Constraint("Vertical", 9),
    Sketcher.Constraint("Coincident", 10, 3, 5, 3),
    Sketcher.Constraint("Equal", 0, 4),
    Sketcher.Constraint("Equal", 5, 10),
    Sketcher.Constraint("Parallel", 1, 3),
    Sketcher.Constraint("Radius", 0, Q("1 mm")),
    Sketcher.Constraint("Radius", 2, Q("3.3 mm")),
    Sketcher.Constraint("DistanceX", 8, 1, 8, 2, Q("25 mm")),
    Sketcher.Constraint("DistanceY", 7, 1, 7, 2, Q("24 mm")),
    Sketcher.Constraint("DistanceY", 5, 2, -1, 1, Q("20 mm")),
    Sketcher.Constraint("DistanceX", -1, 1, 6, 2, Q("14 mm")),
    Sketcher.Constraint("Radius", 5, Q("22.068067 mm")),
    Sketcher.Constraint("DistanceX", -1, 1, 10, 2, Q("31.583502 mm")),
    Sketcher.Constraint("DistanceX", 3, 2, 0, 1, Q("4.3706 mm")),
    Sketcher.Constraint("Distance", 1, Q("2.724461 mm")),
    Sketcher.Constraint("DistanceX", 6, 2, 6, 1, Q("8.778107 mm")),
    Sketcher.Constraint("DistanceY", 9, 2, 9, 1, Q("1.712398 mm")),
])
pad4 = body.newObject("PartDesign::Pad", "Pad003")
pad4.Profile = sketch10
pad4.Length = 10

# Sketch on YZ plane
sketch11 = body.newObject("Sketcher::SketchObject", "Sketch010")
sketch11.AttachmentSupport = (doc.getObject("YZ_Plane"), [""])
sketch11.MapMode = "FlatFace"
sketch11.AttachmentOffset = App.Placement(V(0, 0, -16), App.Rotation())
sketch11.addGeometry([
    Part.ArcOfCircle(Part.Circle(V(45, -19, 0), V(0, 0, 1), 22), math.radians(127), math.radians(148)),  # 0
    Part.ArcOfCircle(Part.Circle(V(45, -19, 0), V(0, 0, 1), 22), math.radians(105), math.radians(127)),  # 1
    Part.LineSegment(V(39, 2, 0), V(39, -20, 0)),  # 2
    Part.LineSegment(V(39, -20, 0), V(23, -20, 0)),  # 3
    Part.ArcOfCircle(Part.Circle(V(45, -19, 0), V(0, 0, 1), 22), math.radians(148), math.radians(183)),  # 4
], False)
sketch11.addConstraint([
    Sketcher.Constraint("Tangent", 0, 1, 1, 2),
    Sketcher.Constraint("Coincident", 1, 1, 2, 1),
    Sketcher.Constraint("Coincident", 2, 2, 3, 1),
    Sketcher.Constraint("Coincident", 3, 2, 4, 2),
    Sketcher.Constraint("Tangent", 4, 1, 0, 2),
    Sketcher.Constraint("Vertical", 2),
    Sketcher.Constraint("Horizontal", 3),
    Sketcher.Constraint("Equal", 0, 1),
    Sketcher.Constraint("Equal", 1, 4),
    Sketcher.Constraint("DistanceX", -1, 1, 1, 1, Q("39 mm")),
    Sketcher.Constraint("DistanceY", 2, 2, -1, 1, Q("20 mm")),
    Sketcher.Constraint("Radius", 0, Q("22.068067 mm")),
    Sketcher.Constraint("DistanceX", -1, 1, 0, 1, Q("31.583502 mm")),
    Sketcher.Constraint("DistanceX", 3, 2, 3, 1, Q("16.221893 mm")),
    Sketcher.Constraint("DistanceY", 2, 2, 2, 1, Q("22.287602 mm")),
    Sketcher.Constraint("DistanceX", -1, 1, 4, 1, Q("26.028652 mm")),
])
pocket7 = body.newObject("PartDesign::Pocket", "Pocket006")
pocket7.Profile = sketch11
pocket7.Type = "ThroughAll"
pocket7.Reversed = True

doc.recompute()
